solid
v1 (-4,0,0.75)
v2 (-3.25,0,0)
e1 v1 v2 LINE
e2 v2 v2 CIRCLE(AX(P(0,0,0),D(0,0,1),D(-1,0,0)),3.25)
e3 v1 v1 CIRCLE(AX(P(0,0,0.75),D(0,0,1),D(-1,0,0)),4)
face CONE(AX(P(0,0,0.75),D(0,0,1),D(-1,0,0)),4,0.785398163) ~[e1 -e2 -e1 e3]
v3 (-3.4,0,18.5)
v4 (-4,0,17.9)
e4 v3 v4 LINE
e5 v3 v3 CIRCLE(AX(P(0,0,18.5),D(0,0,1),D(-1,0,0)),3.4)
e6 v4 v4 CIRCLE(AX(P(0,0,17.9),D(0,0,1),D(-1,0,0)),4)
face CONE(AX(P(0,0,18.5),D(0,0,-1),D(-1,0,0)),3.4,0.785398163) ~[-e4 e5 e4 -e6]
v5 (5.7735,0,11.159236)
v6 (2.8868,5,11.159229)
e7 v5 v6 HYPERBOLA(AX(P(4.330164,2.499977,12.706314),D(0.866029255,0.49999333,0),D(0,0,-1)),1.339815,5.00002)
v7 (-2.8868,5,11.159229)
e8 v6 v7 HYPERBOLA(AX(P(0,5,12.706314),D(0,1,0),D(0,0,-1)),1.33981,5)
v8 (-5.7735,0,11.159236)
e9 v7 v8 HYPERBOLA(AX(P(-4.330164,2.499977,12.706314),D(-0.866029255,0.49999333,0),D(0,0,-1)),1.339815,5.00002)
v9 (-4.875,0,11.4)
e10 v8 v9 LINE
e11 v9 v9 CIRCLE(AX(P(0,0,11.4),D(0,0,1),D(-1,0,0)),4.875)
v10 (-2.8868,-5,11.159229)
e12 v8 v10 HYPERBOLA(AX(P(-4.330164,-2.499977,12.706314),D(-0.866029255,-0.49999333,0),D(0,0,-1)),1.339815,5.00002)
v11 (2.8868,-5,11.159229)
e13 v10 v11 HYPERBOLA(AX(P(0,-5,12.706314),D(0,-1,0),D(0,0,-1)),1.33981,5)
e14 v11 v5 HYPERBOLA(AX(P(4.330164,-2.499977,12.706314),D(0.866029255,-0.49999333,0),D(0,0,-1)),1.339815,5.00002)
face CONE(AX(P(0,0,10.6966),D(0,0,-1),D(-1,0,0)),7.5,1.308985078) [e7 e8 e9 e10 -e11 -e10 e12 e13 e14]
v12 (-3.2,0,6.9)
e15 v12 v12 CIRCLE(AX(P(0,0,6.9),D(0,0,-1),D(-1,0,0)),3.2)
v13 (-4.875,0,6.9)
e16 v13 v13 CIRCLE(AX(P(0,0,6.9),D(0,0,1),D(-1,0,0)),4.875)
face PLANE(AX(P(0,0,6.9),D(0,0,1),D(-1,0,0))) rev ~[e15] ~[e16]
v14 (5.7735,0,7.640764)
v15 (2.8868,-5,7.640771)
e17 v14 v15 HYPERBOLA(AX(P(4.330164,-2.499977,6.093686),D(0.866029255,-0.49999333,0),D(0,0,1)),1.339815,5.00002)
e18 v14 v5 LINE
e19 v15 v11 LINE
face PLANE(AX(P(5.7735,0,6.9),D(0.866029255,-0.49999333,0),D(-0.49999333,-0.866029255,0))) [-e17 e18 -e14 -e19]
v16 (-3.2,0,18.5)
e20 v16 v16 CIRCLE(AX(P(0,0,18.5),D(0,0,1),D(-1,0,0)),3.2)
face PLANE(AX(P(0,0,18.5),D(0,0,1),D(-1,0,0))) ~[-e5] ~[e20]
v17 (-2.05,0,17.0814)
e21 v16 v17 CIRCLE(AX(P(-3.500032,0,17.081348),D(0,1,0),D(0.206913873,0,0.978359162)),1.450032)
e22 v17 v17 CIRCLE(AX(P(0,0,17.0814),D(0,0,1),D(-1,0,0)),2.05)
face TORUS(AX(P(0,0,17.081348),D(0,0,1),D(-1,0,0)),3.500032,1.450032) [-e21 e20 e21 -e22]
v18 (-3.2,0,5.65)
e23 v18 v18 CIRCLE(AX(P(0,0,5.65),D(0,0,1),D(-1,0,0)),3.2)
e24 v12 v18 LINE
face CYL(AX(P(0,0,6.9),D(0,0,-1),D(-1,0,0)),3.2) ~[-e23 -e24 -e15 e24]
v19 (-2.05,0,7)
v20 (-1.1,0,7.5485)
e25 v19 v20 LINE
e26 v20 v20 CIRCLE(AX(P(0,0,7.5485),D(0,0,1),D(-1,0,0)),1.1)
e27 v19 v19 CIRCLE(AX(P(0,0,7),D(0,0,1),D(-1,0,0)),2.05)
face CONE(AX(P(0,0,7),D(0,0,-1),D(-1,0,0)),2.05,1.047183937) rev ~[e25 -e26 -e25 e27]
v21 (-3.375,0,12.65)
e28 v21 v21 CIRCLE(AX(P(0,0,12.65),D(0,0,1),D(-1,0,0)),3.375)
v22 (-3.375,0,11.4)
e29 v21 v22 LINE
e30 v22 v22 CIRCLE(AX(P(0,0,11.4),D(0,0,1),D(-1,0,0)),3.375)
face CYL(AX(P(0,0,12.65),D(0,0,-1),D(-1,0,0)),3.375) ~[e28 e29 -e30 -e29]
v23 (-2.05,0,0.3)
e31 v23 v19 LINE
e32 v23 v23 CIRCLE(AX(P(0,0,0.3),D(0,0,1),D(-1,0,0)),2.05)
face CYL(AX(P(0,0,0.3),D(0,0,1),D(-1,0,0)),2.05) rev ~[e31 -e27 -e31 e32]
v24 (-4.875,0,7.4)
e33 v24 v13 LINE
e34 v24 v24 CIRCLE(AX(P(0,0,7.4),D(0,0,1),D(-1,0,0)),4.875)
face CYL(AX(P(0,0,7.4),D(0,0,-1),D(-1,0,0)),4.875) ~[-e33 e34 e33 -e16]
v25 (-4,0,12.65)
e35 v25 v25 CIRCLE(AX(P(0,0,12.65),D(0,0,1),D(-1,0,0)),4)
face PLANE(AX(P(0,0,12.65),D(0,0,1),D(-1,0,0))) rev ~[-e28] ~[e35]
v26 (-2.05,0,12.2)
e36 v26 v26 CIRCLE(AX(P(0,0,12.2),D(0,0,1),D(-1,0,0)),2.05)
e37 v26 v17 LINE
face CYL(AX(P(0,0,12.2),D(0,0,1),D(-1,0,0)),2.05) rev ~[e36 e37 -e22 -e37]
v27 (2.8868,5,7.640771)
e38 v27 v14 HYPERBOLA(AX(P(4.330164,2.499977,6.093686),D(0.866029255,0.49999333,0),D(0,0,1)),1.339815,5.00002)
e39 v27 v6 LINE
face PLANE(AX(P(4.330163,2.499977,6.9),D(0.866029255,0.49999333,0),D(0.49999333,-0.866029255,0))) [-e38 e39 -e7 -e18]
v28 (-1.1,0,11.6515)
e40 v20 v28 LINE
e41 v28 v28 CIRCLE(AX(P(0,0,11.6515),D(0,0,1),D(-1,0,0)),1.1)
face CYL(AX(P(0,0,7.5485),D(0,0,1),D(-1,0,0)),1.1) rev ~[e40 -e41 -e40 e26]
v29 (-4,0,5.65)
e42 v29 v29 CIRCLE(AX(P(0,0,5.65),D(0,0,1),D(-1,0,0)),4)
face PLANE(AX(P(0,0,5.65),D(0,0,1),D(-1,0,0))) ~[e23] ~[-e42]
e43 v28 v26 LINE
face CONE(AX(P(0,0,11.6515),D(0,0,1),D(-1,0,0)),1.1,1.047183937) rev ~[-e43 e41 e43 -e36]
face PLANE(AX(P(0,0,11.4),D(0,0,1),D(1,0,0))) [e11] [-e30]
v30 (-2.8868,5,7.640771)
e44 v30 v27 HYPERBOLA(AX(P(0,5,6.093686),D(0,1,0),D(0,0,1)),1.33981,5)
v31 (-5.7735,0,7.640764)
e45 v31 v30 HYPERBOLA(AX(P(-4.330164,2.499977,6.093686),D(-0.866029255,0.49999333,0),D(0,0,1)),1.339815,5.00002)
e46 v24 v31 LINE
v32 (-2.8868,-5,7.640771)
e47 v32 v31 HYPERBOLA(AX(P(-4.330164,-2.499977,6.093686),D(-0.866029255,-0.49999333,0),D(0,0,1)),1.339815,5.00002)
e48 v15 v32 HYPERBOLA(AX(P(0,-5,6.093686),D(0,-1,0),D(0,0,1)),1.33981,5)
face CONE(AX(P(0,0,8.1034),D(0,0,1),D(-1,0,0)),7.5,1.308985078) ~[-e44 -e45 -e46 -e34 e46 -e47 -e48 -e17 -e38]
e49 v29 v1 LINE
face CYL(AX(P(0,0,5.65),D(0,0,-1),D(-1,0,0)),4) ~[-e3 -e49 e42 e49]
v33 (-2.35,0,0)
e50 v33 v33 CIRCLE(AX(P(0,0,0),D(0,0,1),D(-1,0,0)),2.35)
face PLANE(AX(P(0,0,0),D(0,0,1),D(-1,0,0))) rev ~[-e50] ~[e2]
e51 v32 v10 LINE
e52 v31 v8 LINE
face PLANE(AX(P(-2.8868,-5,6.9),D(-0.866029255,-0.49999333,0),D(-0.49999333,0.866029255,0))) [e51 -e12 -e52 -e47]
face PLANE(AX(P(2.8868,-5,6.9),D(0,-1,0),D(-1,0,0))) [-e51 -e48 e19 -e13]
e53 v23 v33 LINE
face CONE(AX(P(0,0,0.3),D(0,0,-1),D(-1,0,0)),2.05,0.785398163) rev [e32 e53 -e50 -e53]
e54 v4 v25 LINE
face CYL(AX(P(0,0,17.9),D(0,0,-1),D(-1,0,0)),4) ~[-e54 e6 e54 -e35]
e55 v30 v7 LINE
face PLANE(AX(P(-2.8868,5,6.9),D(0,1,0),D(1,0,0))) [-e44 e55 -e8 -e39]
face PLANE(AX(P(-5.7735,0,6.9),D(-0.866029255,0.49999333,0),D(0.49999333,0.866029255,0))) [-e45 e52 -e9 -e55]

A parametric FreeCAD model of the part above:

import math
import FreeCAD as App
import Part
import Sketcher
from FreeCAD import Vector
Q = App.Units.Quantity


def add_polygon(sketch, points):
    """Adds a closed chain of lines whose ends are joined by coincident constraints."""
    first, n = sketch.GeometryCount, len(points)
    for a, b in zip(points, points[1:] + points[:1]):
        sketch.addGeometry(Part.LineSegment(App.Vector(*a, 0), App.Vector(*b, 0)), False)
    for i in range(n):
        sketch.addConstraint(Sketcher.Constraint("Coincident", first + i, 2, first + (i + 1) % n, 1))

doc = App.newDocument("Part")
body = doc.addObject("PartDesign::Body", "Body")

sketch1 = body.newObject("Sketcher::SketchObject", "Sketch")
sketch1.AttachmentSupport = (doc.getObject("XZ_Plane"), [""])
sketch1.MapMode = "FlatFace"
sketch1.addGeometry(Part.LineSegment(Vector(-2.35, 0, 0), Vector(-3.25, 0, 0)), False)
sketch1.addGeometry(Part.LineSegment(Vector(-3.25, 0, 0), Vector(-4, 0.75, 0)), False)
sketch1.addGeometry(Part.LineSegment(Vector(-4, 0.75, 0), Vector(-4, 5.65, 0)), False)
sketch1.addGeometry(Part.LineSegment(Vector(-4, 5.65, 0), Vector(-3.2, 5.65, 0)), False)
sketch1.addGeometry(Part.LineSegment(Vector(-3.2, 5.65, 0), Vector(-3.2, 6.9, 0)), False)
sketch1.addGeometry(Part.LineSegment(Vector(-3.2, 6.9, 0), Vector(-5, 6.9, 0)), False)
sketch1.addGeometry(Part.LineSegment(Vector(-5, 6.9, 0), Vector(-5, 11.4, 0)), False)
sketch1.addGeometry(Part.LineSegment(Vector(-5, 11.4, 0), Vector(-3.38, 11.4, 0)), False)
sketch1.addGeometry(Part.LineSegment(Vector(-3.38, 11.4, 0), Vector(-3.38, 12.65, 0)), False)
sketch1.addGeometry(Part.LineSegment(Vector(-3.38, 12.65, 0), Vector(-4, 12.65, 0)), False)
sketch1.addGeometry(Part.LineSegment(Vector(-4, 12.65, 0), Vector(-4, 17.9, 0)), False)
sketch1.addGeometry(Part.LineSegment(Vector(-4, 17.9, 0), Vector(-3.4, 18.5, 0)), False)
sketch1.addGeometry(Part.LineSegment(Vector(-3.4, 18.5, 0), Vector(-3.2, 18.5, 0)), False)
sketch1.addGeometry(Part.ArcOfCircle(Part.Circle(Vector(-3.5, 17.08, 0), Vector(0, 0, 1), 1.45), math.radians(0), math.radians(78)), False)
sketch1.addGeometry(Part.LineSegment(Vector(-2.05, 17.08, 0), Vector(-2.05, 12.2, 0)), False)
sketch1.addGeometry(Part.LineSegment(Vector(-2.05, 12.2, 0), Vector(-1.1, 11.65, 0)), False)
sketch1.addGeometry(Part.LineSegment(Vector(-1.1, 11.65, 0), Vector(-1.1, 7.55, 0)), False)
sketch1.addGeometry(Part.LineSegment(Vector(-1.1, 7.55, 0), Vector(-2.05, 7, 0)), False)
sketch1.addGeometry(Part.LineSegment(Vector(-2.05, 7, 0), Vector(-2.05, 0.3, 0)), False)
sketch1.addGeometry(Part.LineSegment(Vector(-2.05, 0.3, 0), Vector(-2.35, 0, 0)), False)
sketch1.addConstraint(Sketcher.Constraint("Coincident", 0, 2, 1, 1))
sketch1.addConstraint(Sketcher.Constraint("Coincident", 1, 2, 2, 1))
sketch1.addConstraint(Sketcher.Constraint("Coincident", 2, 2, 3, 1))
sketch1.addConstraint(Sketcher.Constraint("Coincident", 3, 2, 4, 1))
sketch1.addConstraint(Sketcher.Constraint("Coincident", 4, 2, 5, 1))
sketch1.addConstraint(Sketcher.Constraint("Coincident", 5, 2, 6, 1))
sketch1.addConstraint(Sketcher.Constraint("Coincident", 6, 2, 7, 1))
sketch1.addConstraint(Sketcher.Constraint("Coincident", 7, 2, 8, 1))
sketch1.addConstraint(Sketcher.Constraint("Coincident", 8, 2, 9, 1))
sketch1.addConstraint(Sketcher.Constraint("Coincident", 9, 2, 10, 1))
sketch1.addConstraint(Sketcher.Constraint("Coincident", 10, 2, 11, 1))
sketch1.addConstraint(Sketcher.Constraint("Coincident", 11, 2, 12, 1))
sketch1.addConstraint(Sketcher.Constraint("Coincident", 12, 2, 13, 2))
sketch1.addConstraint(Sketcher.Constraint("Tangent", 13, 1, 14, 1))
sketch1.addConstraint(Sketcher.Constraint("Coincident", 14, 2, 15, 1))
sketch1.addConstraint(Sketcher.Constraint("Coincident", 15, 2, 16, 1))
sketch1.addConstraint(Sketcher.Constraint("Coincident", 16, 2, 17, 1))
sketch1.addConstraint(Sketcher.Constraint("Coincident", 17, 2, 18, 1))
sketch1.addConstraint(Sketcher.Constraint("Coincident", 18, 2, 19, 1))
sketch1.addConstraint(Sketcher.Constraint("Coincident", 19, 2, 0, 1))
sketch1.addConstraint(Sketcher.Constraint("Horizontal", 0))
sketch1.addConstraint(Sketcher.Constraint("Vertical", 2))
sketch1.addConstraint(Sketcher.Constraint("Horizontal", 3))
sketch1.addConstraint(Sketcher.Constraint("Vertical", 4))
sketch1.addConstraint(Sketcher.Constraint("Horizontal", 5))
sketch1.addConstraint(Sketcher.Constraint("Vertical", 6))
sketch1.addConstraint(Sketcher.Constraint("Horizontal", 7))
sketch1.addConstraint(Sketcher.Constraint("Vertical", 8))
sketch1.addConstraint(Sketcher.Constraint("Horizontal", 9))
sketch1.addConstraint(Sketcher.Constraint("Vertical", 10))
sketch1.addConstraint(Sketcher.Constraint("Horizontal", 12))
sketch1.addConstraint(Sketcher.Constraint("Vertical", 14))
sketch1.addConstraint(Sketcher.Constraint("Vertical", 16))
sketch1.addConstraint(Sketcher.Constraint("Vertical", 18))
sketch1.addConstraint(Sketcher.Constraint("PointOnObject", 0, 2, -1))
sketch1.addConstraint(Sketcher.Constraint("Perpendicular", 1, 11))
sketch1.addConstraint(Sketcher.Constraint("Parallel", 11, 19))
sketch1.addConstraint(Sketcher.Constraint("Vertical", 2, 2, 9, 2))
sketch1.addConstraint(Sketcher.Constraint("Vertical", 4, 2, 12, 2))
sketch1.addConstraint(Sketcher.Constraint("Vertical", 14, 2, 17, 2))
sketch1.addConstraint(Sketcher.Constraint("Equal", 4, 8))
sketch1.addConstraint(Sketcher.Constraint("Equal", 15, 17))
sketch1.addConstraint(Sketcher.Constraint("Angle", 11, Q("45 deg")))
sketch1.addConstraint(Sketcher.Constraint("Radius", 13, 1.45))
sketch1.addConstraint(Sketcher.Constraint("DistanceY", 6, 1, 6, 2, 4.5))
sketch1.addConstraint(Sketcher.Constraint("DistanceY", -1, 1, 17, 2, 7.0))
sketch1.addConstraint(Sketcher.Constraint("DistanceY", 4, 1, 4, 2, 1.25))
sketch1.addConstraint(Sketcher.Constraint("DistanceY", -1, 1, 11, 2, 18.5))
sketch1.addConstraint(Sketcher.Constraint("DistanceY", -1, 1, 18, 2, 0.3))
sketch1.addConstraint(Sketcher.Constraint("DistanceX", 1, 2, 13, 3, 0.5))
sketch1.addConstraint(Sketcher.Constraint("DistanceX", 13, 3, 3, 2, 0.3))
sketch1.addConstraint(Sketcher.Constraint("DistanceX", 10, 2, 11, 2, 0.6))
sketch1.addConstraint(Sketcher.Constraint("DistanceY", 7, 2, 11, 2, 7.1))
sketch1.addConstraint(Sketcher.Constraint("DistanceY", -1, 1, 1, 2, 0.75))
sketch1.addConstraint(Sketcher.Constraint("Angle", 15, Q("-30.0008 deg")))
sketch1.addConstraint(Sketcher.Constraint("DistanceX", 5, 2, 5, 1, 1.8))
sketch1.addConstraint(Sketcher.Constraint("DistanceX", 1, 2, -1, 1, 4.0))
sketch1.addConstraint(Sketcher.Constraint("DistanceY", -1, 1, 14, 2, 12.2))
sketch1.addConstraint(Sketcher.Constraint("DistanceX", 15, 2, -1, 1, 1.1))
sketch1.addConstraint(Sketcher.Constraint("DistanceX", 7, 1, 7, 2, 1.625))
revolution = body.newObject("PartDesign::Revolution", "Revolution")
revolution.Profile = sketch1
revolution.ReferenceAxis = (sketch1, ["V_Axis"])
revolution.Angle = 360

sketch2 = body.newObject("Sketcher::SketchObject", "Sketch001")
sketch2.AttachmentSupport = (doc.getObject("XY_Plane"), [""])
sketch2.MapMode = "FlatFace"
sketch2.AttachmentOffset = App.Placement(Vector(0, 0, 6.9), App.Rotation())
add_polygon(sketch2, [(5.8, 0), (2.9, 5), (-2.9, 5), (-5.8, 0), (-2.9, -5), (2.9, -5)])
sketch2.addGeometry(Part.Circle(Vector(0, 0, 0), Vector(0, 0, 1), 3.2), False)
sketch2.addConstraint(Sketcher.Constraint("Horizontal", 1))
sketch2.addConstraint(Sketcher.Constraint("Horizontal", 4))
sketch2.addConstraint(Sketcher.Constraint("Coincident", 6, 3, -1, 1))
sketch2.addConstraint(Sketcher.Constraint("Symmetric", 0, 2, 3, 2, -1, 1))
sketch2.addConstraint(Sketcher.Constraint("Symmetric", 2, 2, 5, 2, -1, 1))
sketch2.addConstraint(Sketcher.Constraint("PointOnObject", 2, 2, -1))
sketch2.addConstraint(Sketcher.Constraint("Parallel", 2, 5))
sketch2.addConstraint(Sketcher.Constraint("Vertical", 1, 2, 3, 2))
sketch2.addConstraint(Sketcher.Constraint("DistanceY", 3, 2, 1, 2, 10.0))
sketch2.addConstraint(Sketcher.Constraint("Diameter", 6, 6.4))
sketch2.addConstraint(Sketcher.Constraint("Angle", 0, Q("119.9996 deg")))
sketch2.addConstraint(Sketcher.Constraint("DistanceX", 1, 2, 1, 1, 5.7736))
pad1 = body.newObject("PartDesign::Pad", "Pad")
pad1.Profile = sketch2
pad1.Length = 4.5

sketch3 = body.newObject("Sketcher::SketchObject", "Sketch002")
sketch3.AttachmentSupport = (doc.getObject("XZ_Plane"), [""])
sketch3.MapMode = "FlatFace"
add_polygon(sketch3, [(-4.9, 11.4), (-7.5, 10.7), (-7.5, 11.4)])
sketch3.addConstraint(Sketcher.Constraint("Vertical", 1))
sketch3.addConstraint(Sketcher.Constraint("Horizontal", 2))
sketch3.addConstraint(Sketcher.Constraint("Angle", 0, Q("-164.9993 deg")))
sketch3.addConstraint(Sketcher.Constraint("DistanceX", 0, 2, -1, 1, 7.5))
sketch3.addConstraint(Sketcher.Constraint("DistanceY", -1, 1, 1, 2, 11.4))
sketch3.addConstraint(Sketcher.Constraint("DistanceX", 2, 1, 2, 2, 2.625))
groove = body.newObject("PartDesign::Groove", "Groove")
groove.Profile = sketch3
groove.ReferenceAxis = (sketch3, ["V_Axis"])
groove.Angle = 360

sketch4 = body.newObject("Sketcher::SketchObject", "Sketch003")
sketch4.AttachmentSupport = (doc.getObject("XZ_Plane"), [""])
sketch4.MapMode = "FlatFace"
add_polygon(sketch4, [(-4.9, 7.4), (-4.9, 6.9), (-7.5, 6.9), (-7.5, 8.1)])
sketch4.addConstraint(Sketcher.Constraint("Vertical", 0))
sketch4.addConstraint(Sketcher.Constraint("Horizontal", 1))
sketch4.addConstraint(Sketcher.Constraint("Vertical", 2))
sketch4.addConstraint(Sketcher.Constraint("DistanceY", 0, 2, 0, 1, 0.5))
sketch4.addConstraint(Sketcher.Constraint("Angle", 3, Q("-15.0007 deg")))
sketch4.addConstraint(Sketcher.Constraint("DistanceY", -1, 1, 0, 2, 6.9))
sketch4.addConstraint(Sketcher.Constraint("DistanceX", 1, 2, -1, 1, 7.5))
sketch4.addConstraint(Sketcher.Constraint("DistanceX", 1, 2, 1, 1, 2.625))
groove2 = body.newObject("PartDesign::Groove", "Groove001")
groove2.Profile = sketch4
groove2.ReferenceAxis = (sketch4, ["V_Axis"])
groove2.Angle = 360

doc.recompute()
